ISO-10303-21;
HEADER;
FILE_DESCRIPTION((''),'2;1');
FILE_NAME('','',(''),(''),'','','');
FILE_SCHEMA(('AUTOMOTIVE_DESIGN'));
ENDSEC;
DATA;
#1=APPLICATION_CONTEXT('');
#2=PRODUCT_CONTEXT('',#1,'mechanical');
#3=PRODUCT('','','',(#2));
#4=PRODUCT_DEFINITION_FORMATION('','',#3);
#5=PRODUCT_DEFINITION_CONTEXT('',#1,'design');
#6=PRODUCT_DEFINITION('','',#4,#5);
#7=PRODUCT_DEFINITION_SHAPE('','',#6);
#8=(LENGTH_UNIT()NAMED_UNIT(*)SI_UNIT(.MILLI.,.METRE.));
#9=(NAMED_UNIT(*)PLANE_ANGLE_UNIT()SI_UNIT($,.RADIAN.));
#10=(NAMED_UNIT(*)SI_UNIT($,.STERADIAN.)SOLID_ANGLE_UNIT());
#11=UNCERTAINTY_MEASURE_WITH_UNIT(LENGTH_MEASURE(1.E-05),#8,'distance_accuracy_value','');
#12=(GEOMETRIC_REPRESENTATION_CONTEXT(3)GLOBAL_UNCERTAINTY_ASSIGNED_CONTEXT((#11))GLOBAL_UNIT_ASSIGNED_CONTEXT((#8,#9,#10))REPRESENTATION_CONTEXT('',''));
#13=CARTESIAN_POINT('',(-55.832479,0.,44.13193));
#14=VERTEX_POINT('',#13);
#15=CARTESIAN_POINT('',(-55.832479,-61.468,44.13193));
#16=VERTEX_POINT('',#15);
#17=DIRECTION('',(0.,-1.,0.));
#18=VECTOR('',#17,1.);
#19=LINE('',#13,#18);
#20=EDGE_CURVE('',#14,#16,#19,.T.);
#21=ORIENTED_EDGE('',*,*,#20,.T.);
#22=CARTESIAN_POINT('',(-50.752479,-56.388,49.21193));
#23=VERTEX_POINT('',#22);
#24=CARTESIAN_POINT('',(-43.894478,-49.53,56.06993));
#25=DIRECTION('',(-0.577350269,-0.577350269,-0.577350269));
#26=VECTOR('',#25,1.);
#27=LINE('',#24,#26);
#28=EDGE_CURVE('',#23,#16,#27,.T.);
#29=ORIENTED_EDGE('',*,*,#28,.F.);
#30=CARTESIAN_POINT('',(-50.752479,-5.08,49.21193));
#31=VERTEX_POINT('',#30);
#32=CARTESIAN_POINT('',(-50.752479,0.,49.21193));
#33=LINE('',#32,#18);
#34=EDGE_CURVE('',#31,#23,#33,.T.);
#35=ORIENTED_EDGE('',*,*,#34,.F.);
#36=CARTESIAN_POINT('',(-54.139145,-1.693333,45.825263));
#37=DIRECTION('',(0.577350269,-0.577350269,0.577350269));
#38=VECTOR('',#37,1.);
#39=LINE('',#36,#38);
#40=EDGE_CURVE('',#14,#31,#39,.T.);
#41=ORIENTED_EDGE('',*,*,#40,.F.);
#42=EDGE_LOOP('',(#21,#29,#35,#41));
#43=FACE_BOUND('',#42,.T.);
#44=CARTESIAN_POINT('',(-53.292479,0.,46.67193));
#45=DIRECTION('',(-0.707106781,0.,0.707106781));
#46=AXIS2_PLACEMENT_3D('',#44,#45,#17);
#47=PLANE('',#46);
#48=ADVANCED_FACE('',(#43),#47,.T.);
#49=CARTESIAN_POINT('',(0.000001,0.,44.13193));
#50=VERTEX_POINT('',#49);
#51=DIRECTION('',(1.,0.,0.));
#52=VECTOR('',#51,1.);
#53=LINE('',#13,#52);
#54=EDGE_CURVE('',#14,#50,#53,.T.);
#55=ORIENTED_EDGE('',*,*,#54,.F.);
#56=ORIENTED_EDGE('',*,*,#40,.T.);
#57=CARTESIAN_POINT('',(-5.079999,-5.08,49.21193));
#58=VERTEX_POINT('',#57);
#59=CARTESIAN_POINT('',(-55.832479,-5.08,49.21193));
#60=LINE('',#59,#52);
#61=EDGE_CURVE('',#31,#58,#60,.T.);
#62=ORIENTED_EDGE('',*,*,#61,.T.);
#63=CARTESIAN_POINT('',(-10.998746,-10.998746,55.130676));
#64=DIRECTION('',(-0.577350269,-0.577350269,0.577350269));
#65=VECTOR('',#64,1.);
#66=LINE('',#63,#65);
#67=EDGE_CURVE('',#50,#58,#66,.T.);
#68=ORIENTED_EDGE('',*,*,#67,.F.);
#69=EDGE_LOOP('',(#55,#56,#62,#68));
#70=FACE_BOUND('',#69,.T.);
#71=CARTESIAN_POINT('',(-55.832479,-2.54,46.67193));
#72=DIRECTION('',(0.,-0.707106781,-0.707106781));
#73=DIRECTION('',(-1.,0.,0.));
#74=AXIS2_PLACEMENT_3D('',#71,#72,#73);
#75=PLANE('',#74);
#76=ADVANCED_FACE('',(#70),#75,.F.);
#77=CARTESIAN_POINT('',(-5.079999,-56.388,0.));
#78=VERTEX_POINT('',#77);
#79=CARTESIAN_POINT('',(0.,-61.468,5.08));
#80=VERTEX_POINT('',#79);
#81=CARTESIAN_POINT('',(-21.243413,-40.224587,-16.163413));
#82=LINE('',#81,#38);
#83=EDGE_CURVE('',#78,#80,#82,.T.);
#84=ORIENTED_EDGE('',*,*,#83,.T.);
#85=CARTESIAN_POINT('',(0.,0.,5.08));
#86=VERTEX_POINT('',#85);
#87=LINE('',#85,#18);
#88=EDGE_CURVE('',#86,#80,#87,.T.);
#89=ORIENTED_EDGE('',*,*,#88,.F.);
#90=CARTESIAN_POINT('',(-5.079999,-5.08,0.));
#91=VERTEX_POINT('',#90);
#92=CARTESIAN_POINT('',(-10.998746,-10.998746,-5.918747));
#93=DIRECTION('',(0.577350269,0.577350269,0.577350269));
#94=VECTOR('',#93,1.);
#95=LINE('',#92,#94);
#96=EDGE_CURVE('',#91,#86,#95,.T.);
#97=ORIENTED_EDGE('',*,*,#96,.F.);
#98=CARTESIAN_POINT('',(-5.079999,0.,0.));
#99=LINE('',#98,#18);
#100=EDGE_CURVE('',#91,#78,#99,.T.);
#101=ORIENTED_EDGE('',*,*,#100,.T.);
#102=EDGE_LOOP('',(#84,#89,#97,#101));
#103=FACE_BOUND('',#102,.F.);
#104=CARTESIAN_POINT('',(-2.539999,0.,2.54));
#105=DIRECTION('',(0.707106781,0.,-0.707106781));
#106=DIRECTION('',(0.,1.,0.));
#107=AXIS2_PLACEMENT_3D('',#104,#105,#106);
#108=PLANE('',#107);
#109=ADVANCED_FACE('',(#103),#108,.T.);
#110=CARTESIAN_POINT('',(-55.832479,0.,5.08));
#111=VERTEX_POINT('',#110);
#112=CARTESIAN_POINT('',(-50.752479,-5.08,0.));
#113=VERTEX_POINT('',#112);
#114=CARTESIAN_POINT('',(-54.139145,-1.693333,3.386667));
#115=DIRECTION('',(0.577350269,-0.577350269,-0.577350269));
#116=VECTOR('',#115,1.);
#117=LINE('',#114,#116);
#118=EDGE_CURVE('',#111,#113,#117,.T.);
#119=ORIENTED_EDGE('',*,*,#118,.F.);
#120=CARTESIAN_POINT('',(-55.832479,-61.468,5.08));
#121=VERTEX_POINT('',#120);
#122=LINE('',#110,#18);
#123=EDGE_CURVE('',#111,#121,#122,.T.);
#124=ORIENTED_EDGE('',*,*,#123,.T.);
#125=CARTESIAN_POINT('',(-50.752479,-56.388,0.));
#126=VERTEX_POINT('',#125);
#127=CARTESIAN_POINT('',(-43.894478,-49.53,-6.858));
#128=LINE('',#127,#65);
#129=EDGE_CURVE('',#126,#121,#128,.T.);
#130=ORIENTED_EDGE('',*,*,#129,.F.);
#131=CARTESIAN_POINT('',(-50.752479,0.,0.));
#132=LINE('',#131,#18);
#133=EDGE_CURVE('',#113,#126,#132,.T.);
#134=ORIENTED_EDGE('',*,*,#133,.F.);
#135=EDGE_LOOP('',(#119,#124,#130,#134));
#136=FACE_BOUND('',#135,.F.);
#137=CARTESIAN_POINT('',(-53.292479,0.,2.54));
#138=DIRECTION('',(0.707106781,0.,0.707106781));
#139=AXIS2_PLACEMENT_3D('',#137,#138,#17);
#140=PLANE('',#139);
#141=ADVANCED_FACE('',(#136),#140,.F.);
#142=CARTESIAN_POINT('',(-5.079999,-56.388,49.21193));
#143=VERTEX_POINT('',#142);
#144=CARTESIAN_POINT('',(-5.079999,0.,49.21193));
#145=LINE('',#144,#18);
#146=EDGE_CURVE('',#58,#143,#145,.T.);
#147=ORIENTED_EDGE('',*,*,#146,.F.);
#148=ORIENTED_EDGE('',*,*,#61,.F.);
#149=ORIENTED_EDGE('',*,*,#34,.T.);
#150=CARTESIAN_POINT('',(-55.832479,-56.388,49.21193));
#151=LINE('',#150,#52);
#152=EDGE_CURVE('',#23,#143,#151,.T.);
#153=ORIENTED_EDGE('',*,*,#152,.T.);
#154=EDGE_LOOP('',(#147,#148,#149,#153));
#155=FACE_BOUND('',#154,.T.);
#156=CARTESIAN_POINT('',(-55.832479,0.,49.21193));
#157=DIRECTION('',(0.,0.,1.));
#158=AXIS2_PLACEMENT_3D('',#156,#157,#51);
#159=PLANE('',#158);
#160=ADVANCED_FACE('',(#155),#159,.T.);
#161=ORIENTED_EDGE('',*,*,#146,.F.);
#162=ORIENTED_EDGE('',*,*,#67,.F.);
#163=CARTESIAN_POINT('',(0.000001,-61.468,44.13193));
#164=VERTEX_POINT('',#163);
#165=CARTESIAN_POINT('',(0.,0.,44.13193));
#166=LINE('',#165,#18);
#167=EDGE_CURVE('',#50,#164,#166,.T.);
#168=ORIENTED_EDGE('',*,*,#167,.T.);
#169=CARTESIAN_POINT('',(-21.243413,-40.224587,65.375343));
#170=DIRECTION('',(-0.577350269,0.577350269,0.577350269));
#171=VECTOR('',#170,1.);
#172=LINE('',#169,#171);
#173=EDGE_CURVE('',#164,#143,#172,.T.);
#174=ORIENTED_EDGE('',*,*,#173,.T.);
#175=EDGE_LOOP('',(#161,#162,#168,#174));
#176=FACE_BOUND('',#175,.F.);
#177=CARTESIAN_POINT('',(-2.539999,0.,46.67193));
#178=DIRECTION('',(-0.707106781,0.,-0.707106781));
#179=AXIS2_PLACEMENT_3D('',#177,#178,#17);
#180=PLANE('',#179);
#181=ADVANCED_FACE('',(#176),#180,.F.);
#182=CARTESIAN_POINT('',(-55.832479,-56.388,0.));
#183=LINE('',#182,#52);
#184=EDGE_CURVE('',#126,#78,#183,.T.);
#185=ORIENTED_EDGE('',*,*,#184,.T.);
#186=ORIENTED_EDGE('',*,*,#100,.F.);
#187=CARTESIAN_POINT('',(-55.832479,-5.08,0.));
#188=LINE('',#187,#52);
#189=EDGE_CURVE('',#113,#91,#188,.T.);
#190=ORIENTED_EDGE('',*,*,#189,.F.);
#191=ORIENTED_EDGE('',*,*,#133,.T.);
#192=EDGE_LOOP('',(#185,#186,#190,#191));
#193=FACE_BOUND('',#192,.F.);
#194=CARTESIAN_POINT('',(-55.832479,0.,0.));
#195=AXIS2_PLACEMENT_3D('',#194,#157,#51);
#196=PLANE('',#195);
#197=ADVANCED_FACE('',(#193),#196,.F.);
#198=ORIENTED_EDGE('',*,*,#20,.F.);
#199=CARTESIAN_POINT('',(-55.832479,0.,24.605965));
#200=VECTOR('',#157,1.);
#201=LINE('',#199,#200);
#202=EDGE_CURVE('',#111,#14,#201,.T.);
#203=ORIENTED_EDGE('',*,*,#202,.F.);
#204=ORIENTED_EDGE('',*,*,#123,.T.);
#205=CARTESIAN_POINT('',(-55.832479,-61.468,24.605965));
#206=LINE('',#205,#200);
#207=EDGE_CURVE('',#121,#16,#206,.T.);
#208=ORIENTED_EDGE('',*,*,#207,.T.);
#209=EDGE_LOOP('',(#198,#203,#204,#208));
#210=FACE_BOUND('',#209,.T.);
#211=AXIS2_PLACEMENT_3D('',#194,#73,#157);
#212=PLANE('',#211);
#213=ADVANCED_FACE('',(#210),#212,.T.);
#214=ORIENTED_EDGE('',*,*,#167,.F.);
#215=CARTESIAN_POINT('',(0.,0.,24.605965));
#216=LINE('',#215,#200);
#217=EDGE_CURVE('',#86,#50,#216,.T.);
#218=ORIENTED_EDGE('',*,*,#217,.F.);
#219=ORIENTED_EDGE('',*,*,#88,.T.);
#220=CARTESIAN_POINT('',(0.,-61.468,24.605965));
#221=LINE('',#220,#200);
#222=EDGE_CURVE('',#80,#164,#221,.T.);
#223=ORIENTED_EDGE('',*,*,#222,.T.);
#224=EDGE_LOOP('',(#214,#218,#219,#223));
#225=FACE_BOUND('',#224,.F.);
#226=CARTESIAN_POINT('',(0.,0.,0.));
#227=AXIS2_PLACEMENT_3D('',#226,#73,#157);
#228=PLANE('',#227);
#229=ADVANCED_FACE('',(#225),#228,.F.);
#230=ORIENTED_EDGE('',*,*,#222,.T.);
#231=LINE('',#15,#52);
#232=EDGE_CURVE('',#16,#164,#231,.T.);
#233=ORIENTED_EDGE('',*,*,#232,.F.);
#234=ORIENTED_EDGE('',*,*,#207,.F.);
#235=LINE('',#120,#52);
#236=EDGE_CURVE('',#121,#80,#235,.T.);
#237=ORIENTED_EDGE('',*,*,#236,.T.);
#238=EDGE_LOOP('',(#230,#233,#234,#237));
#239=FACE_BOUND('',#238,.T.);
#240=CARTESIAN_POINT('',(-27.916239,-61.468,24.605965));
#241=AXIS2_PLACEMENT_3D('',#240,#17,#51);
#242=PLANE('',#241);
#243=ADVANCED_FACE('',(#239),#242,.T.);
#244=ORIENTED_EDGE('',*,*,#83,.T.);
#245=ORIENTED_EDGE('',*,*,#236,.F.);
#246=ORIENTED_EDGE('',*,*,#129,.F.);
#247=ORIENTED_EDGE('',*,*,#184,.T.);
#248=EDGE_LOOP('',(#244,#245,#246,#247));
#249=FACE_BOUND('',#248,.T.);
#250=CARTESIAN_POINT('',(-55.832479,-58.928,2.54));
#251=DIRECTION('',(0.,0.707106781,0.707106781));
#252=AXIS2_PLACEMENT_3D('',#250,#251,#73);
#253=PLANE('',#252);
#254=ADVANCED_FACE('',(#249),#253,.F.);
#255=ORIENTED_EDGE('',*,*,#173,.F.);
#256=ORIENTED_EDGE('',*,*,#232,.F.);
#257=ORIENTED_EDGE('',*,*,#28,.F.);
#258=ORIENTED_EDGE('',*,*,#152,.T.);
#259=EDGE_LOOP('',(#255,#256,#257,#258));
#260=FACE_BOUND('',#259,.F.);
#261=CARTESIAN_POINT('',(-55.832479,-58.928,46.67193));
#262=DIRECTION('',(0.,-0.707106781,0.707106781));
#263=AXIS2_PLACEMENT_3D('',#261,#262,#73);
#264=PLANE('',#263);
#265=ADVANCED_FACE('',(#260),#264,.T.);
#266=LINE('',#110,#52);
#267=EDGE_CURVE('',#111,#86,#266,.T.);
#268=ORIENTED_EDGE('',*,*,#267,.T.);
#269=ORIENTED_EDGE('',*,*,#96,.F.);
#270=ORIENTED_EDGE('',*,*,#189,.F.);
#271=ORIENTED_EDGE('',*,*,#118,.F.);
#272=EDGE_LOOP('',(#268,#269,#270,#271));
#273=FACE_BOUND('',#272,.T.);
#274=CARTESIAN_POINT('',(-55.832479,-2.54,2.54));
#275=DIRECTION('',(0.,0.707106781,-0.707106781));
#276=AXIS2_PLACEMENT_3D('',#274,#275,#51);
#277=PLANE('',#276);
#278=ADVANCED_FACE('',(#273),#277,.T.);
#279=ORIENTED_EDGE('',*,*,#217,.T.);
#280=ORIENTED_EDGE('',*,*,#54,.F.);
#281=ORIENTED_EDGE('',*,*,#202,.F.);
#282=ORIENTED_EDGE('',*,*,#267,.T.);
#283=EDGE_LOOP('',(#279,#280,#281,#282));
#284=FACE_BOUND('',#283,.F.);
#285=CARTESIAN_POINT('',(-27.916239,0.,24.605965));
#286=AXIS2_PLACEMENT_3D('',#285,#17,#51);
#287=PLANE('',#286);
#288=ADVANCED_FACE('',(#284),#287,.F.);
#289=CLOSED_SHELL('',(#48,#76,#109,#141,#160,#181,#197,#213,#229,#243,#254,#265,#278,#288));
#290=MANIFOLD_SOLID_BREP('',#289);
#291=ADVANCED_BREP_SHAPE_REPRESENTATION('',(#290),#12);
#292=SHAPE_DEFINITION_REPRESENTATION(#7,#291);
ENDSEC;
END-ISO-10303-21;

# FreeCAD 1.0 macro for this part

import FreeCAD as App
import Part
import Sketcher
Q = App.Units.Quantity


def edges_at(feature, points):
    """Names of the edges that pass closest to the given points."""
    edges = feature.Shape.Edges
    near = lambda p: min(range(len(edges)), key=lambda i: edges[i].distToShape(Part.Vertex(*p))[0])
    return sorted({f"Edge{near(p) + 1}" for p in points})


def add_polygon(sketch, points):
    """Adds a closed chain of lines whose ends are joined by coincident constraints."""
    first, n = sketch.GeometryCount, len(points)
    for a, b in zip(points, points[1:] + points[:1]):
        sketch.addGeometry(Part.LineSegment(App.Vector(*a, 0), App.Vector(*b, 0)), False)
    for i in range(n):
        sketch.addConstraint(Sketcher.Constraint("Coincident", first + i, 2, first + (i + 1) % n, 1))

doc = App.newDocument("Part")
body = doc.addObject("PartDesign::Body", "Body")

sketch1 = doc.addObject("Sketcher::SketchObject", "Sketch")
body.addObject(sketch1)
sketch1.AttachmentSupport = (doc.XZ_Plane, [""])
sketch1.MapMode = "FlatFace"
add_polygon(sketch1, [(-56, 49), (-56, 0), (0, 0), (0, 49)])
sketch1.addConstraint([
    Sketcher.Constraint("Vertical", 0),
    Sketcher.Constraint("Horizontal", 1),
    Sketcher.Constraint("Vertical", 2),
    Sketcher.Constraint("Horizontal", 3),
    Sketcher.Constraint("Coincident", 1, 2, -1, 1),
    Sketcher.Constraint("DistanceX", 1, 1, 1, 2, 55.832479),
    Sketcher.Constraint("DistanceY", 0, 2, 0, 1, 49.21193),
])
pad1 = doc.addObject("PartDesign::Pad", "Pad")
body.addObject(pad1)
pad1.Profile = sketch1
pad1.Length = Q("2.42 in")
doc.recompute()

chamfer = doc.addObject("PartDesign::Chamfer", "Chamfer")
body.addObject(chamfer)
chamfer.Base = (pad1, edges_at(pad1, [
    (0, -30.734, 49.212),
    (-27.916, -61.468, 49.212),
    (-55.832, -30.734, 49.212),
    (-27.916, 0, 49.212),
]))
chamfer.Size = Q("0.2 in")
doc.recompute()

chamfer2 = doc.addObject("PartDesign::Chamfer", "Chamfer001")
body.addObject(chamfer2)
chamfer2.Base = (chamfer, edges_at(chamfer, [
    (0, -30.734, 0),
    (-27.916, -61.468, 0),
    (-55.832, -30.734, 0),
    (-27.916, 0, 0),
]))
chamfer2.Size = Q("0.2 in")

doc.recompute()
